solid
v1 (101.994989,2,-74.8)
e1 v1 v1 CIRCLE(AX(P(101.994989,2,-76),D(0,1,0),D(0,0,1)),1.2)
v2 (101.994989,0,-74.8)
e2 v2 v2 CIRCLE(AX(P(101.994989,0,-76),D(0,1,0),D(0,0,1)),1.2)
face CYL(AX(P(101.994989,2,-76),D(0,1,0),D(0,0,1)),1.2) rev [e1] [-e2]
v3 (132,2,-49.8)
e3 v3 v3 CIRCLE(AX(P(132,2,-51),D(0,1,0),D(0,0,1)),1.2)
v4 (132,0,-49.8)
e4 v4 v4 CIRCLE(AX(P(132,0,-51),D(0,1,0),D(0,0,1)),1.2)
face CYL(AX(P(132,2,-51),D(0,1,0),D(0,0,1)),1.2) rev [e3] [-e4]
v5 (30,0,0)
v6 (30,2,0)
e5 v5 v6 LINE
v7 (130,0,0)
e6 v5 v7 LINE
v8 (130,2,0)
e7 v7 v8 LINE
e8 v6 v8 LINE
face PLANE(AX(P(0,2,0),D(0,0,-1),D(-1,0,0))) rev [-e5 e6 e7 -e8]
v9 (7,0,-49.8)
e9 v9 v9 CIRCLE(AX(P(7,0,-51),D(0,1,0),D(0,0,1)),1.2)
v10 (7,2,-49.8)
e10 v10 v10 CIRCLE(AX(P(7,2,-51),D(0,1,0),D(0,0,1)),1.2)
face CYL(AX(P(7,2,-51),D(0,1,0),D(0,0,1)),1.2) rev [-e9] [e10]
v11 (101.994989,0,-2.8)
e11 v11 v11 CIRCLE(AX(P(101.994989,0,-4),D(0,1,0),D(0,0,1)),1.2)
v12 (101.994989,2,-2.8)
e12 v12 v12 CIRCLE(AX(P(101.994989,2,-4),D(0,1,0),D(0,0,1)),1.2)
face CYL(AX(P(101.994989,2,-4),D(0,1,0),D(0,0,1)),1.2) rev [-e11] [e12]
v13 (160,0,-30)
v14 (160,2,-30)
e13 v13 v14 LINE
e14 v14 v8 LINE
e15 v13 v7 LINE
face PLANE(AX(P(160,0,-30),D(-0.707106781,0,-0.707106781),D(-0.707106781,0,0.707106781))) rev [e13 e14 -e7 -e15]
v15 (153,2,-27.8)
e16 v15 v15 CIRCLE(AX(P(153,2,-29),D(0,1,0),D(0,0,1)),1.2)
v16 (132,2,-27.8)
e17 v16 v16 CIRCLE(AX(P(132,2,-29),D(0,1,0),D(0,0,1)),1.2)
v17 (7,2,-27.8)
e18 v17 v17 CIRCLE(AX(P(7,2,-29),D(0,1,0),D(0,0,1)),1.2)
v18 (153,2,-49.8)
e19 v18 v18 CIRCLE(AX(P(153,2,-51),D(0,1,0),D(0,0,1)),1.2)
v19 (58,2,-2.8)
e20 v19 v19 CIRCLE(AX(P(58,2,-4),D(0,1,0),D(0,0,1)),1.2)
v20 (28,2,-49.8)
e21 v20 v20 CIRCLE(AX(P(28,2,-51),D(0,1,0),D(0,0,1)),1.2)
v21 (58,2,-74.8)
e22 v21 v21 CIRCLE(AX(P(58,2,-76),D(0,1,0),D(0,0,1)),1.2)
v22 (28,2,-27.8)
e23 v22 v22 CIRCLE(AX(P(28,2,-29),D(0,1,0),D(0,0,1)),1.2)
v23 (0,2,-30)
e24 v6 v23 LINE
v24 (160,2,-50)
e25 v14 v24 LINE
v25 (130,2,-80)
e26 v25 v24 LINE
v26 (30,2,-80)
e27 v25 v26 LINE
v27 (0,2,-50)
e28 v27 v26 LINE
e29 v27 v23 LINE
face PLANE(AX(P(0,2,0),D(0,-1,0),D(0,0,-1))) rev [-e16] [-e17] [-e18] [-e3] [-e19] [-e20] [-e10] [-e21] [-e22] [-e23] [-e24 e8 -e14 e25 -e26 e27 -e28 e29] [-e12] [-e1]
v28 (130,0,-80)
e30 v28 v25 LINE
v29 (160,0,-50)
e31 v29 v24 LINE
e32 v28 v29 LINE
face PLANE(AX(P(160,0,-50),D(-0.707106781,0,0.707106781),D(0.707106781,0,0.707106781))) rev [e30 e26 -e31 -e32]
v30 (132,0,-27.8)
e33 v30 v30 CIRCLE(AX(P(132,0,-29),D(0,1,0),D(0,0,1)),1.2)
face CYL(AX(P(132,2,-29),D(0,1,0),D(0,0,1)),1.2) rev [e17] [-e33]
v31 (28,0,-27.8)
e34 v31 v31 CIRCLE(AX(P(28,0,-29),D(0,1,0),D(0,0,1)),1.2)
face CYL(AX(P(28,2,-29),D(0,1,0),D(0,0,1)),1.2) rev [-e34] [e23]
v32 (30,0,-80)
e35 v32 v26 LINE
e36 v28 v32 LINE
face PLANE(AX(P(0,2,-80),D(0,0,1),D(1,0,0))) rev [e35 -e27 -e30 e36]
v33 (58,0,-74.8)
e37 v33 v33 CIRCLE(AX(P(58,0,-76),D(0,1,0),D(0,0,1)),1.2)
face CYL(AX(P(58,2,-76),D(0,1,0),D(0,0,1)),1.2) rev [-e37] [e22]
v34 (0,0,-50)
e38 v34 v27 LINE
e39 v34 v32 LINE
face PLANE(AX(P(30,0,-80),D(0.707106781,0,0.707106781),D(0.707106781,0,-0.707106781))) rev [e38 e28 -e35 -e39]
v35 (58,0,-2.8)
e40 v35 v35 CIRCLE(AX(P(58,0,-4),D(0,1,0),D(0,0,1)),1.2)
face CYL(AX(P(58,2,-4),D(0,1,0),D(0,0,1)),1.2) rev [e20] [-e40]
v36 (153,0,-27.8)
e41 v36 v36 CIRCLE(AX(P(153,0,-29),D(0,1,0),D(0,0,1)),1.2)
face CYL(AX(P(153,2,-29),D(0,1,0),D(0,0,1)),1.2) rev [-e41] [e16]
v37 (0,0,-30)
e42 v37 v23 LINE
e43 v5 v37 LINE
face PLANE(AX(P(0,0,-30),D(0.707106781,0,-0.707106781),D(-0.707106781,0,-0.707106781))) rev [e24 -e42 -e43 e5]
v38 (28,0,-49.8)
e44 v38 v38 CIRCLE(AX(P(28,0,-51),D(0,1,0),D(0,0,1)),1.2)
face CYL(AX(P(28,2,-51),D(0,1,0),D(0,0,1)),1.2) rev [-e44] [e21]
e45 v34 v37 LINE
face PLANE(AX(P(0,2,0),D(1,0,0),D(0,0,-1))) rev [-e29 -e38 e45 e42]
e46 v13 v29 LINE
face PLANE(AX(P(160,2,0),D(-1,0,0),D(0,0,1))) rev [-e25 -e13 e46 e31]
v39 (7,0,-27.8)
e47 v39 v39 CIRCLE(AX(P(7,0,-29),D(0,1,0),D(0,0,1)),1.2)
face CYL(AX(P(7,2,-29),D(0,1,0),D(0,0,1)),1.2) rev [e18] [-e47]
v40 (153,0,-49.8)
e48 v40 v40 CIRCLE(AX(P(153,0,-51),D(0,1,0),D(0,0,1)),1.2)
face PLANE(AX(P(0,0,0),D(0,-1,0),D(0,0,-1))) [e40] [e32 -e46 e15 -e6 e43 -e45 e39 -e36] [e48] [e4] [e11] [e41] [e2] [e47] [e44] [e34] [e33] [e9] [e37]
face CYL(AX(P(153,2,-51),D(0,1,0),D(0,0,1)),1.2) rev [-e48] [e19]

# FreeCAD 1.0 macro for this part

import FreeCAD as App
import Part
import Sketcher
from FreeCAD import Vector

doc = App.newDocument("Part")
body = doc.addObject("PartDesign::Body", "Body")

# Sketch on XZ plane
sketch1 = body.newObject("Sketcher::SketchObject", "Sketch")
sketch1.AttachmentSupport = (doc.getObject("XZ_Plane"), [""])
sketch1.MapMode = "FlatFace"
sketch1.addGeometry([
    Part.LineSegment(Vector(0, -80, 0), Vector(0, 0, 0)),
    Part.LineSegment(Vector(0, 0, 0), Vector(160, 0, 0)),
    Part.LineSegment(Vector(160, 0, 0), Vector(160, -80, 0)),
    Part.LineSegment(Vector(160, -80, 0), Vector(0, -80, 0)),
], False)
sketch1.addConstraint([
    Sketcher.Constraint("Coincident", 0, 2, 1, 1),
    Sketcher.Constraint("Coincident", 1, 2, 2, 1),
    Sketcher.Constraint("Coincident", 2, 2, 3, 1),
    Sketcher.Constraint("Coincident", 3, 2, 0, 1),
    Sketcher.Constraint("Vertical", 0),
    Sketcher.Constraint("Horizontal", 1),
    Sketcher.Constraint("Vertical", 2),
    Sketcher.Constraint("Horizontal", 3),
    Sketcher.Constraint("Coincident", 0, 2, -1, 1),
    Sketcher.Constraint("DistanceX", 1, 1, 1, 2, 160.0),
    Sketcher.Constraint("DistanceY", 0, 1, 0, 2, 80.0),
])
pad1 = body.newObject("PartDesign::Pad", "Pad")
pad1.Profile = sketch1
pad1.Length = 2
pad1.Reversed = True

# Sketch on XZ plane
sketch2 = body.newObject("Sketcher::SketchObject", "Sketch001")
sketch2.AttachmentSupport = (doc.getObject("XZ_Plane"), [""])
sketch2.MapMode = "FlatFace"
sketch2.AttachmentOffset = App.Placement(Vector(0, 0, -2), App.Rotation())
sketch2.addGeometry([
    Part.LineSegment(Vector(30, 0, 0), Vector(0, -30, 0)),  # 0
    Part.LineSegment(Vector(0, -30, 0), Vector(0, 0, 0)),  # 1
    Part.LineSegment(Vector(0, 0, 0), Vector(30, 0, 0)),  # 2
    Part.LineSegment(Vector(0, -50, 0), Vector(30, -80, 0)),  # 3
    Part.LineSegment(Vector(30, -80, 0), Vector(0, -80, 0)),  # 4
    Part.LineSegment(Vector(0, -80, 0), Vector(0, -50, 0)),  # 5
    Part.LineSegment(Vector(160, -80, 0), Vector(130, -80, 0)),  # 6
    Part.LineSegment(Vector(130, -80, 0), Vector(160, -50, 0)),  # 7
    Part.LineSegment(Vector(160, -50, 0), Vector(160, -80, 0)),  # 8
    Part.LineSegment(Vector(160, -30, 0), Vector(130, 0, 0)),  # 9
    Part.LineSegment(Vector(130, 0, 0), Vector(160, 0, 0)),  # 10
    Part.LineSegment(Vector(160, 0, 0), Vector(160, -30, 0)),  # 11
], False)
sketch2.addConstraint([
    Sketcher.Constraint("Coincident", 0, 2, 1, 1),
    Sketcher.Constraint("Coincident", 1, 2, 2, 1),
    Sketcher.Constraint("Coincident", 2, 2, 0, 1),
    Sketcher.Constraint("Coincident", 3, 2, 4, 1),
    Sketcher.Constraint("Coincident", 4, 2, 5, 1),
    Sketcher.Constraint("Coincident", 5, 2, 3, 1),
    Sketcher.Constraint("Coincident", 6, 2, 7, 1),
    Sketcher.Constraint("Coincident", 7, 2, 8, 1),
    Sketcher.Constraint("Coincident", 8, 2, 6, 1),
    Sketcher.Constraint("Coincident", 9, 2, 10, 1),
    Sketcher.Constraint("Coincident", 10, 2, 11, 1),
    Sketcher.Constraint("Coincident", 11, 2, 9, 1),
    Sketcher.Constraint("Vertical", 1),
    Sketcher.Constraint("Horizontal", 2),
    Sketcher.Constraint("Horizontal", 4),
    Sketcher.Constraint("Vertical", 5),
    Sketcher.Constraint("Horizontal", 6),
    Sketcher.Constraint("Vertical", 8),
    Sketcher.Constraint("Horizontal", 10),
    Sketcher.Constraint("Vertical", 11),
    Sketcher.Constraint("Coincident", 1, 2, -1, 1),
    Sketcher.Constraint("PointOnObject", 4, 2, -2),
    Sketcher.Constraint("PointOnObject", 9, 2, -1),
    Sketcher.Constraint("Perpendicular", 0, 3),
    Sketcher.Constraint("Perpendicular", 3, 7),
    Sketcher.Constraint("Perpendicular", 7, 9),
    Sketcher.Constraint("Horizontal", 4, 2, 6, 2),
    Sketcher.Constraint("Horizontal", 5, 2, 7, 2),
    Sketcher.Constraint("Horizontal", 0, 2, 11, 2),
    Sketcher.Constraint("Vertical", 2, 2, 3, 2),
    Sketcher.Constraint("Vertical", 6, 2, 9, 2),
    Sketcher.Constraint("Vertical", 8, 2, 10, 2),
    Sketcher.Constraint("DistanceX", 2, 1, 2, 2, 30.0),
    Sketcher.Constraint("DistanceY", 3, 2, -1, 1, 80.0),
    Sketcher.Constraint("DistanceX", -1, 1, 6, 2, 130.0),
])
pocket1 = body.newObject("PartDesign::Pocket", "Pocket")
pocket1.Profile = sketch2
pocket1.Length = 2
pocket1.Reversed = True

# Sketch on XZ plane
sketch3 = body.newObject("Sketcher::SketchObject", "Sketch002")
sketch3.AttachmentSupport = (doc.getObject("XZ_Plane"), [""])
sketch3.MapMode = "FlatFace"
sketch3.AttachmentOffset = App.Placement(Vector(0, 0, -2), App.Rotation())
sketch3.addGeometry([
    Part.Circle(Vector(7, -51, 0), Vector(0, 0, 1), 1.2),  # 0
    Part.Circle(Vector(7, -29, 0), Vector(0, 0, 1), 1.2),  # 1
    Part.Circle(Vector(28, -29, 0), Vector(0, 0, 1), 1.2),  # 2
    Part.Circle(Vector(28, -51, 0), Vector(0, 0, 1), 1.2),  # 3
    Part.Circle(Vector(58, -76, 0), Vector(0, 0, 1), 1.2),  # 4
    Part.Circle(Vector(58, -4, 0), Vector(0, 0, 1), 1.2),  # 5
    Part.Circle(Vector(132, -29, 0), Vector(0, 0, 1), 1.2),  # 6
    Part.Circle(Vector(153, -29, 0), Vector(0, 0, 1), 1.2),  # 7
    Part.Circle(Vector(153, -51, 0), Vector(0, 0, 1), 1.2),  # 8
    Part.Circle(Vector(132, -51, 0), Vector(0, 0, 1), 1.2),  # 9
    Part.Circle(Vector(101.994989, -76, 0), Vector(0, 0, 1), 1.2),  # 10
    Part.Circle(Vector(101.994989, -4, 0), Vector(0, 0, 1), 1.2),  # 11
], False)
sketch3.addConstraint([
    Sketcher.Constraint("Equal", 0, 1),
    Sketcher.Constraint("Equal", 1, 2),
    Sketcher.Constraint("Equal", 2, 3),
    Sketcher.Constraint("Equal", 3, 4),
    Sketcher.Constraint("Equal", 4, 5),
    Sketcher.Constraint("Equal", 5, 6),
    Sketcher.Constraint("Equal", 6, 7),
    Sketcher.Constraint("Equal", 7, 8),
    Sketcher.Constraint("Equal", 8, 9),
    Sketcher.Constraint("Equal", 9, 10),
    Sketcher.Constraint("Equal", 10, 11),
    Sketcher.Constraint("Horizontal", 1, 3, 2, 3),
    Sketcher.Constraint("Horizontal", 0, 3, 3, 3),
    Sketcher.Constraint("Horizontal", 2, 3, 6, 3),
    Sketcher.Constraint("Horizontal", 6, 3, 7, 3),
    Sketcher.Constraint("Horizontal", 3, 3, 8, 3),
    Sketcher.Constraint("Horizontal", 8, 3, 9, 3),
    Sketcher.Constraint("Horizontal", 4, 3, 10, 3),
    Sketcher.Constraint("Horizontal", 5, 3, 11, 3),
    Sketcher.Constraint("Vertical", 0, 3, 1, 3),
    Sketcher.Constraint("Vertical", 2, 3, 3, 3),
    Sketcher.Constraint("Vertical", 4, 3, 5, 3),
    Sketcher.Constraint("Vertical", 7, 3, 8, 3),
    Sketcher.Constraint("Vertical", 6, 3, 9, 3),
    Sketcher.Constraint("Vertical", 10, 3, 11, 3),
    Sketcher.Constraint("Diameter", 0, 2.4),
    Sketcher.Constraint("DistanceX", -1, 1, 0, 3, 7.0),
    Sketcher.Constraint("DistanceY", 0, 3, -1, 1, 51.0),
    Sketcher.Constraint("DistanceY", 1, 3, -1, 1, 29.0),
    Sketcher.Constraint("DistanceX", -1, 1, 2, 3, 28.0),
    Sketcher.Constraint("DistanceX", -1, 1, 4, 3, 58.0),
    Sketcher.Constraint("DistanceY", 4, 3, -1, 1, 76.0),
    Sketcher.Constraint("DistanceY", 5, 3, -1, 1, 4.0),
    Sketcher.Constraint("DistanceX", -1, 1, 6, 3, 132.0),
    Sketcher.Constraint("DistanceX", -1, 1, 7, 3, 153.0),
    Sketcher.Constraint("DistanceX", -1, 1, 10, 3, 101.994989),
])
doc.recompute()
hole = body.newObject("PartDesign::Hole", "Hole")
hole.Profile = sketch3
hole.ThreadType = "None"
hole.Diameter = 2.4
hole.DepthType = "ThroughAll"
hole.Reversed = True

doc.recompute()
